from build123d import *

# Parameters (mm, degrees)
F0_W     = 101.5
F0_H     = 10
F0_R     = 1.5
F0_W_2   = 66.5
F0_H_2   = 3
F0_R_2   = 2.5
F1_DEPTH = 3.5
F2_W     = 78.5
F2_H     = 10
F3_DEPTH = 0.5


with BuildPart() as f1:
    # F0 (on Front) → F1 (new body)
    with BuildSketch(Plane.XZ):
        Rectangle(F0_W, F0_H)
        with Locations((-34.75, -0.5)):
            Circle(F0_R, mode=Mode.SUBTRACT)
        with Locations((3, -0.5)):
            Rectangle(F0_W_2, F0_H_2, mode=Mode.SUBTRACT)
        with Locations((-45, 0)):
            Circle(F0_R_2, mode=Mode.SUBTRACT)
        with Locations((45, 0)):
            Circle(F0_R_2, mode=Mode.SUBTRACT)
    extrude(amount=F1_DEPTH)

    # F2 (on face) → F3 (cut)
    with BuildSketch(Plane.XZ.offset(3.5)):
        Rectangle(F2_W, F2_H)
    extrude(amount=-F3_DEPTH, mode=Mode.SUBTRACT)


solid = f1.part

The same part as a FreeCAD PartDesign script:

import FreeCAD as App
import Part
import Sketcher
from FreeCAD import Vector

doc = App.newDocument("Part")
params = doc.addObject("Spreadsheet::Sheet", "Params")
for row, (alias, value) in enumerate([
    ("sketch1_diameter", "3 mm"),
    ("sketch1_diameter2", "5 mm"),
    ("sketch1_height", "10 mm"),
    ("sketch1_height2", "3 mm"),
    ("sketch1_width", "101.5 mm"),
    ("pad1_length", "3.5 mm"),
    ("sketch2_height", "10 mm"),
    ("sketch2_width", "78.5 mm"),
    ("pocket1_length", "0.5 mm"),
], start=1):
    params.set(f"A{row}", alias)
    params.set(f"B{row}", "=" + value)
    params.setAlias(f"B{row}", alias)

body = doc.addObject("PartDesign::Body", "Body")

# Sketch on XZ plane
sketch1 = body.newObject("Sketcher::SketchObject", "Sketch")
sketch1.AttachmentSupport = (doc.getObject("XZ_Plane"), [""])
sketch1.MapMode = "FlatFace"
sketch1.addGeometry([
    Part.LineSegment(Vector(-50.75, 5, 0), Vector(-50.75, -5, 0)),  # 0
    Part.LineSegment(Vector(-50.75, -5, 0), Vector(50.75, -5, 0)),  # 1
    Part.LineSegment(Vector(50.75, -5, 0), Vector(50.75, 5, 0)),  # 2
    Part.LineSegment(Vector(50.75, 5, 0), Vector(-50.75, 5, 0)),  # 3
    Part.Circle(Vector(-34.75, -0.5, 0), Vector(0, 0, 1), 1.5),  # 4
    Part.LineSegment(Vector(36.25, -2, 0), Vector(-30.25, -2, 0)),  # 5
    Part.LineSegment(Vector(-30.25, -2, 0), Vector(-30.25, 1, 0)),  # 6
    Part.LineSegment(Vector(-30.25, 1, 0), Vector(36.25, 1, 0)),  # 7
    Part.LineSegment(Vector(36.25, 1, 0), Vector(36.25, -2, 0)),  # 8
    Part.Circle(Vector(-45, 0, 0), Vector(0, 0, 1), 2.5),  # 9
    Part.Circle(Vector(45, 0, 0), Vector(0, 0, 1), 2.5),  # 10
], False)
sketch1.addConstraint([
    Sketcher.Constraint("Coincident", 0, 2, 1, 1),
    Sketcher.Constraint("Coincident", 1, 2, 2, 1),
    Sketcher.Constraint("Coincident", 2, 2, 3, 1),
    Sketcher.Constraint("Coincident", 3, 2, 0, 1),
    Sketcher.Constraint("Coincident", 5, 2, 6, 1),
    Sketcher.Constraint("Coincident", 6, 2, 7, 1),
    Sketcher.Constraint("Coincident", 7, 2, 8, 1),
    Sketcher.Constraint("Coincident", 8, 2, 5, 1),
    Sketcher.Constraint("Vertical", 0),
    Sketcher.Constraint("Horizontal", 1),
    Sketcher.Constraint("Vertical", 2),
    Sketcher.Constraint("Horizontal", 3),
    Sketcher.Constraint("Horizontal", 5),
    Sketcher.Constraint("Vertical", 6),
    Sketcher.Constraint("Horizontal", 7),
    Sketcher.Constraint("Vertical", 8),
    Sketcher.Constraint("Equal", 9, 10),
    Sketcher.Constraint("Symmetric", 9, 3, 10, 3, -1, 1),
    Sketcher.Constraint("Symmetric", 0, 2, 2, 2, -1, 1),
    Sketcher.Constraint("PointOnObject", 9, 3, -1),
    Sketcher.Constraint("Diameter", 4, 3.0),
    Sketcher.Constraint("Diameter", 9, 5.0),
    Sketcher.Constraint("DistanceY", 0, 2, 0, 1, 10.0),
    Sketcher.Constraint("DistanceY", 6, 1, 6, 2, 3.0),
    Sketcher.Constraint("DistanceX", 1, 1, 1, 2, 101.5),
    Sketcher.Constraint("DistanceX", 5, 2, 5, 1, 66.5),
    Sketcher.Constraint("DistanceX", 9, 3, -1, 1, 45.0),
    Sketcher.Constraint("DistanceY", 5, 2, -1, 1, 2.0),
    Sketcher.Constraint("DistanceX", 0, 2, 4, 3, 16.0),
    Sketcher.Constraint("DistanceY", 4, 3, -1, 1, 0.5),
    Sketcher.Constraint("DistanceX", 4, 3, 5, 2, 4.5),
])
sketch1.setExpression("Constraints[20]", "Params.sketch1_diameter")
sketch1.setExpression("Constraints[21]", "Params.sketch1_diameter2")
sketch1.setExpression("Constraints[22]", "Params.sketch1_height")
sketch1.setExpression("Constraints[23]", "Params.sketch1_height2")
sketch1.setExpression("Constraints[24]", "Params.sketch1_width")
pad1 = body.newObject("PartDesign::Pad", "Pad")
pad1.Profile = sketch1
pad1.setExpression("Length", "Params.pad1_length")

# Sketch on XZ plane
sketch2 = body.newObject("Sketcher::SketchObject", "Sketch001")
sketch2.AttachmentSupport = (doc.getObject("XZ_Plane"), [""])
sketch2.MapMode = "FlatFace"
sketch2.AttachmentOffset = App.Placement(Vector(0, 0, 3.5), App.Rotation())
sketch2.addGeometry([
    Part.LineSegment(Vector(-39.25, 5, 0), Vector(-39.25, -5, 0)),
    Part.LineSegment(Vector(-39.25, -5, 0), Vector(39.25, -5, 0)),
    Part.LineSegment(Vector(39.25, -5, 0), Vector(39.25, 5, 0)),
    Part.LineSegment(Vector(39.25, 5, 0), Vector(-39.25, 5, 0)),
], False)
sketch2.addConstraint([
    Sketcher.Constraint("Coincident", 0, 2, 1, 1),
    Sketcher.Constraint("Coincident", 1, 2, 2, 1),
    Sketcher.Constraint("Coincident", 2, 2, 3, 1),
    Sketcher.Constraint("Coincident", 3, 2, 0, 1),
    Sketcher.Constraint("Vertical", 0),
    Sketcher.Constraint("Horizontal", 1),
    Sketcher.Constraint("Vertical", 2),
    Sketcher.Constraint("Horizontal", 3),
    Sketcher.Constraint("Symmetric", 0, 2, 2, 2, -1, 1),
    Sketcher.Constraint("DistanceY", 0, 2, 0, 1, 10.0),
    Sketcher.Constraint("DistanceX", 1, 1, 1, 2, 78.5),
])
sketch2.setExpression("Constraints[9]", "Params.sketch2_height")
sketch2.setExpression("Constraints[10]", "Params.sketch2_width")
pocket1 = body.newObject("PartDesign::Pocket", "Pocket")
pocket1.Profile = sketch2
pocket1.setExpression("Length", "Params.pocket1_length")

doc.recompute()
